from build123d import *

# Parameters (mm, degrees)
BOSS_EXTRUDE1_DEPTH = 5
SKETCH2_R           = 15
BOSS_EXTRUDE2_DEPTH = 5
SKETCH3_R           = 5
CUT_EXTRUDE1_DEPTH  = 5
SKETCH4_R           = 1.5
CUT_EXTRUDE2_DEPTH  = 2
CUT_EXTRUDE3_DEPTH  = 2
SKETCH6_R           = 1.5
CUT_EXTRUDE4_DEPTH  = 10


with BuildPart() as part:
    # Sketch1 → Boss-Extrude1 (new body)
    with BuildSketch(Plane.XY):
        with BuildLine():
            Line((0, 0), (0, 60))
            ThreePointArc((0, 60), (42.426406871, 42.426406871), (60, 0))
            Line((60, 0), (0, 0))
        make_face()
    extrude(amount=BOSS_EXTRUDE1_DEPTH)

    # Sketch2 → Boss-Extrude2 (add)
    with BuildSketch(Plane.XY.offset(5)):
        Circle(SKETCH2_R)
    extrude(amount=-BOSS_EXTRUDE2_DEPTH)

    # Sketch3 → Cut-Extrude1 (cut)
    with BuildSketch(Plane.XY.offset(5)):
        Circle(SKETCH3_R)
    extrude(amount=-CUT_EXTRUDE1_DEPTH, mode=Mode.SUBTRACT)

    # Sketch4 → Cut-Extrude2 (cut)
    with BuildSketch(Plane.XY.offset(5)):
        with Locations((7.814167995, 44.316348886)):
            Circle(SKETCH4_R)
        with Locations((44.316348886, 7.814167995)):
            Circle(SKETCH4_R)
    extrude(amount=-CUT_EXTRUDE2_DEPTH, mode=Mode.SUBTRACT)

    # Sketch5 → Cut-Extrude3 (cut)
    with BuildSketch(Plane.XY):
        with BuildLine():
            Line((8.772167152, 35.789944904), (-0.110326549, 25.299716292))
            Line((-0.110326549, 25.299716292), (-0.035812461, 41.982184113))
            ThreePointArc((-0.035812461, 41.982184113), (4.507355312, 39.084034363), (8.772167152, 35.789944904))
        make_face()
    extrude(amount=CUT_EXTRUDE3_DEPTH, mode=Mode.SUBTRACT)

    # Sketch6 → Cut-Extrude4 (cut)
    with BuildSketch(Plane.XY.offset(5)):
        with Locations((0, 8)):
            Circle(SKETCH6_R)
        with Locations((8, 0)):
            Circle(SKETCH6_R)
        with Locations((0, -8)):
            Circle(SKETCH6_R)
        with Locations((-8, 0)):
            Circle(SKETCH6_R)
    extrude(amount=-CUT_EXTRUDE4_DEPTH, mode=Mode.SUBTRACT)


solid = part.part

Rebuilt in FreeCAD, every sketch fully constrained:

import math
import FreeCAD as App
import Part
import Sketcher
from FreeCAD import Vector
Q = App.Units.Quantity

doc = App.newDocument("Part")
body = doc.addObject("PartDesign::Body", "Body")

sketch1 = doc.addObject("Sketcher::SketchObject", "Sketch")
body.addObject(sketch1)
sketch1.AttachmentSupport = (doc.XY_Plane, [""])
sketch1.MapMode = "FlatFace"
sketch1.addGeometry([
    Part.LineSegment(Vector(0, 60, 0), Vector(0, 0, 0)),
    Part.LineSegment(Vector(0, 0, 0), Vector(60, 0, 0)),
    Part.ArcOfCircle(Part.Circle(Vector(0, 0, 0), Vector(0, 0, 1), 60), math.radians(0), math.radians(90)),
], False)
sketch1.addConstraint([
    Sketcher.Constraint("Coincident", 0, 2, 1, 1),
    Sketcher.Constraint("Coincident", 1, 2, 2, 1),
    Sketcher.Constraint("Coincident", 2, 2, 0, 1),
    Sketcher.Constraint("Vertical", 0),
    Sketcher.Constraint("Horizontal", 1),
    Sketcher.Constraint("Coincident", 2, 3, -1, 1),
    Sketcher.Constraint("Coincident", 0, 2, -1, 1),
    Sketcher.Constraint("Radius", 2, Q("60 mm")),
])
pad1 = doc.addObject("PartDesign::Pad", "Pad")
body.addObject(pad1)
pad1.Profile = sketch1
pad1.Length = 5

sketch2 = doc.addObject("Sketcher::SketchObject", "Sketch001")
body.addObject(sketch2)
sketch2.AttachmentSupport = (doc.XY_Plane, [""])
sketch2.MapMode = "FlatFace"
sketch2.AttachmentOffset = App.Placement(Vector(0, 0, 5), App.Rotation())
sketch2.addGeometry(Part.Circle(Vector(0, 0, 0), Vector(0, 0, 1), 15), False)
sketch2.addConstraint([
    Sketcher.Constraint("Coincident", 0, 3, -1, 1),
    Sketcher.Constraint("Diameter", 0, Q("30 mm")),
])
pad2 = doc.addObject("PartDesign::Pad", "Pad001")
body.addObject(pad2)
pad2.Profile = sketch2
pad2.Length = 5
pad2.Reversed = True

sketch3 = doc.addObject("Sketcher::SketchObject", "Sketch002")
body.addObject(sketch3)
sketch3.AttachmentSupport = (doc.XY_Plane, [""])
sketch3.MapMode = "FlatFace"
sketch3.AttachmentOffset = App.Placement(Vector(0, 0, 5), App.Rotation())
sketch3.addGeometry(Part.Circle(Vector(0, 0, 0), Vector(0, 0, 1), 5), False)
sketch3.addConstraint([
    Sketcher.Constraint("Coincident", 0, 3, -1, 1),
    Sketcher.Constraint("Diameter", 0, Q("10 mm")),
])
pocket1 = doc.addObject("PartDesign::Pocket", "Pocket")
body.addObject(pocket1)
pocket1.Profile = sketch3
pocket1.Length = 5

sketch4 = doc.addObject("Sketcher::SketchObject", "Sketch003")
body.addObject(sketch4)
sketch4.AttachmentSupport = (doc.XY_Plane, [""])
sketch4.MapMode = "FlatFace"
sketch4.AttachmentOffset = App.Placement(Vector(0, 0, 5), App.Rotation())
sketch4.addGeometry([
    Part.Circle(Vector(7.8, 44.3, 0), Vector(0, 0, 1), 1.5),
    Part.Circle(Vector(44.3, 7.8, 0), Vector(0, 0, 1), 1.5),
], False)
sketch4.addConstraint([
    Sketcher.Constraint("Equal", 0, 1),
    Sketcher.Constraint("Diameter", 0, Q("3 mm")),
    Sketcher.Constraint("DistanceY", -1, 1, 0, 3, Q("44.316349 mm")),
    Sketcher.Constraint("DistanceX", -1, 1, 1, 3, Q("44.316349 mm")),
    Sketcher.Constraint("DistanceX", 0, 3, 1, 3, Q("36.502181 mm")),
    Sketcher.Constraint("DistanceY", 1, 3, 0, 3, Q("36.502181 mm")),
])
pocket2 = doc.addObject("PartDesign::Pocket", "Pocket001")
body.addObject(pocket2)
pocket2.Profile = sketch4
pocket2.Length = 2

sketch5 = doc.addObject("Sketcher::SketchObject", "Sketch004")
body.addObject(sketch5)
sketch5.AttachmentSupport = (doc.XY_Plane, [""])
sketch5.MapMode = "FlatFace"
sketch5.addGeometry([
    Part.LineSegment(Vector(0, 25, 0), Vector(9, 36, 0)),
    Part.ArcOfCircle(Part.Circle(Vector(-30, -10, 0), Vector(0, 0, 1), 60), math.radians(49.74), math.radians(60.04)),
    Part.LineSegment(Vector(0, 42, 0), Vector(0, 25, 0)),
], False)
sketch5.addConstraint([
    Sketcher.Constraint("Coincident", 0, 2, 1, 1),
    Sketcher.Constraint("Coincident", 1, 2, 2, 1),
    Sketcher.Constraint("Coincident", 2, 2, 0, 1),
    Sketcher.Constraint("Radius", 1, Q("60 mm")),
    Sketcher.Constraint("DistanceX", 1, 3, -1, 1, Q("30 mm")),
    Sketcher.Constraint("DistanceY", 1, 3, -1, 1, Q("10 mm")),
    Sketcher.Constraint("DistanceX", 1, 2, 0, 2, Q("8.80798 mm")),
    Sketcher.Constraint("DistanceY", 0, 2, 1, 2, Q("6.192239 mm")),
    Sketcher.Constraint("DistanceY", 2, 2, 0, 2, Q("10.490229 mm")),
    Sketcher.Constraint("Distance", 0, Q("13.745675 mm")),
])
pocket3 = doc.addObject("PartDesign::Pocket", "Pocket002")
body.addObject(pocket3)
pocket3.Profile = sketch5
pocket3.Length = 2
pocket3.Reversed = True

sketch6 = doc.addObject("Sketcher::SketchObject", "Sketch005")
body.addObject(sketch6)
sketch6.AttachmentSupport = (doc.XY_Plane, [""])
sketch6.MapMode = "FlatFace"
sketch6.AttachmentOffset = App.Placement(Vector(0, 0, 5), App.Rotation())
sketch6.addGeometry([
    Part.Circle(Vector(0, 8, 0), Vector(0, 0, 1), 1.5),
    Part.Circle(Vector(8, 0, 0), Vector(0, 0, 1), 1.5),
    Part.Circle(Vector(0, -8, 0), Vector(0, 0, 1), 1.5),
    Part.Circle(Vector(-8, 0, 0), Vector(0, 0, 1), 1.5),
], False)
sketch6.addConstraint([
    Sketcher.Constraint("Equal", 0, 1),
    Sketcher.Constraint("Equal", 1, 2),
    Sketcher.Constraint("Equal", 2, 3),
    Sketcher.Constraint("Symmetric", 0, 3, 2, 3, -1, 1),
    Sketcher.Constraint("Symmetric", 1, 3, 3, 3, -1, 1),
    Sketcher.Constraint("PointOnObject", 0, 3, -2),
    Sketcher.Constraint("PointOnObject", 1, 3, -1),
    Sketcher.Constraint("Diameter", 0, Q("3 mm")),
    Sketcher.Constraint("DistanceY", -1, 1, 0, 3, Q("8 mm")),
    Sketcher.Constraint("DistanceX", -1, 1, 1, 3, Q("8 mm")),
])
pocket4 = doc.addObject("PartDesign::Pocket", "Pocket003")
body.addObject(pocket4)
pocket4.Profile = sketch6
pocket4.Length = 10

doc.recompute()
